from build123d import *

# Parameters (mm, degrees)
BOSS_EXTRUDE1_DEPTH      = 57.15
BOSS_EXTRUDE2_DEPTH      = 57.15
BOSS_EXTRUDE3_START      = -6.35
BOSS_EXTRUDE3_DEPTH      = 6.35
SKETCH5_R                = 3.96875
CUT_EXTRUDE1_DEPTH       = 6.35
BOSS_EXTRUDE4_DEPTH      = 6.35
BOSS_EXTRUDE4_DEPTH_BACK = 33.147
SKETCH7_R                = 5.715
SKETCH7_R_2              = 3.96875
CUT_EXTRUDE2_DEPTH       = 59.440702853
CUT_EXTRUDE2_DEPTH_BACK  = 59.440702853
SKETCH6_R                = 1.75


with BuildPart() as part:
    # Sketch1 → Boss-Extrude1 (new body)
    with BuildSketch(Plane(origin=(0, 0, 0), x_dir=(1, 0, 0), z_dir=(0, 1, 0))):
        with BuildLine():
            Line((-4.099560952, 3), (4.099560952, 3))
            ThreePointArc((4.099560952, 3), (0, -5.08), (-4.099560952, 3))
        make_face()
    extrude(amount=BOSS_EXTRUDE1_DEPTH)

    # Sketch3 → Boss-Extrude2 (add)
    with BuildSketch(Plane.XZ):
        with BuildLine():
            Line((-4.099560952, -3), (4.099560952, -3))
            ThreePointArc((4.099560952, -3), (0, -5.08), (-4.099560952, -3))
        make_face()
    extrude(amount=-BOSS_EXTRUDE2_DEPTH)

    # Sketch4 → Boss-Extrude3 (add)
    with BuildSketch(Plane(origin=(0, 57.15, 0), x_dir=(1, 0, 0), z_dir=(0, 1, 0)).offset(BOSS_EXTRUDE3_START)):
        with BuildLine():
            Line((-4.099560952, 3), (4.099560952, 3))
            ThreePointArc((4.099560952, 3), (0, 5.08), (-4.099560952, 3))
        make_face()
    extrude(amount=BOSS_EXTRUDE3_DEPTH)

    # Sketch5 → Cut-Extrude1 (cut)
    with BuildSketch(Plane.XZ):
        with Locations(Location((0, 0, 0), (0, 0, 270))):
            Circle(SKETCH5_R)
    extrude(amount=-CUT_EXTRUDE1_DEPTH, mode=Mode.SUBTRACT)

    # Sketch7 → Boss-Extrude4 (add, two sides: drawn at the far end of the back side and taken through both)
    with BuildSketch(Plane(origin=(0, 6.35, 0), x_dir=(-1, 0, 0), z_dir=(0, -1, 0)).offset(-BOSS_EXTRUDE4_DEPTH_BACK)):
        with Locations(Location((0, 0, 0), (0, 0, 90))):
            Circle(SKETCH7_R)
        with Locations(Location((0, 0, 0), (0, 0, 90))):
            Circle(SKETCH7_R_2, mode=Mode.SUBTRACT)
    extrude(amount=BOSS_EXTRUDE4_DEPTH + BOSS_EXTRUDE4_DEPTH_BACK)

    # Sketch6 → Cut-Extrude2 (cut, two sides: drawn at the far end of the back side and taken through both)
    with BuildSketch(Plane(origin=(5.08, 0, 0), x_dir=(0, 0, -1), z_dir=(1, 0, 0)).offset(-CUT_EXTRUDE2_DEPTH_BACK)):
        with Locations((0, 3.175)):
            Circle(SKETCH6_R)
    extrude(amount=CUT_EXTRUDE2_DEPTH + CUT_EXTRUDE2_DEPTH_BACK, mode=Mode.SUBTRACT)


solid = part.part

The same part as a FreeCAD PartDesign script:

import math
import FreeCAD as App
import Part
import Sketcher
Q = App.Units.Quantity

doc = App.newDocument("Part")
body = doc.addObject("PartDesign::Body", "Body")

sketch1 = body.newObject("Sketcher::SketchObject", "Sketch")
sketch1.AttachmentSupport = (doc.getObject("XZ_Plane"), [""])
sketch1.MapMode = "FlatFace"
sketch1.addGeometry([
    Part.LineSegment(App.Vector(4.099561, -3, 0), App.Vector(-4.099561, -3, 0)),
    Part.ArcOfCircle(Part.Circle(App.Vector(0, 0, 0), App.Vector(0, 0, 1), 5.08), math.radians(-36.196131), math.radians(216.196131)),
], False)
sketch1.addConstraint([
    Sketcher.Constraint("Coincident", 0, 1, 1, 1),
    Sketcher.Constraint("Coincident", 1, 2, 0, 2),
    Sketcher.Constraint("Horizontal", 0),
    Sketcher.Constraint("Coincident", 1, 3, -1, 1),
    Sketcher.Constraint("Radius", 1, Q("0.2 in")),
    Sketcher.Constraint("DistanceX", 0, 2, 0, 1, Q("0.3228001 in")),
])
pad1 = body.newObject("PartDesign::Pad", "Pad")
pad1.Profile = sketch1
pad1.Length = Q("2.25 in")
pad1.Reversed = True

sketch2 = body.newObject("Sketcher::SketchObject", "Sketch001")
sketch2.AttachmentSupport = (doc.getObject("XZ_Plane"), [""])
sketch2.MapMode = "FlatFace"
sketch2.addGeometry([
    Part.LineSegment(App.Vector(4.099561, -3, 0), App.Vector(-4.099561, -3, 0)),
    Part.ArcOfCircle(Part.Circle(App.Vector(0, 0, 0), App.Vector(0, 0, 1), 5.08), math.radians(-143.803869), math.radians(-36.196131)),
], False)
sketch2.addConstraint([
    Sketcher.Constraint("Coincident", 0, 1, 1, 2),
    Sketcher.Constraint("Coincident", 1, 1, 0, 2),
    Sketcher.Constraint("Horizontal", 0),
    Sketcher.Constraint("Coincident", 1, 3, -1, 1),
    Sketcher.Constraint("Radius", 1, Q("0.2 in")),
    Sketcher.Constraint("DistanceX", 0, 2, 0, 1, Q("0.3228001 in")),
])
pad2 = body.newObject("PartDesign::Pad", "Pad001")
pad2.Profile = sketch2
pad2.Length = Q("2.25 in")
pad2.Reversed = True

sketch3 = body.newObject("Sketcher::SketchObject", "Sketch002")
sketch3.AttachmentSupport = (doc.getObject("XZ_Plane"), [""])
sketch3.MapMode = "FlatFace"
sketch3.AttachmentOffset = App.Placement(App.Vector(0, 0, -2 * 25.4), App.Rotation())
sketch3.addGeometry([
    Part.LineSegment(App.Vector(-4.099561, -3, 0), App.Vector(4.099561, -3, 0)),
    Part.ArcOfCircle(Part.Circle(App.Vector(0, 0, 0), App.Vector(0, 0, 1), 5.08), math.radians(-143.803869), math.radians(-36.196131)),
], False)
sketch3.addConstraint([
    Sketcher.Constraint("Coincident", 0, 1, 1, 1),
    Sketcher.Constraint("Coincident", 1, 2, 0, 2),
    Sketcher.Constraint("Horizontal", 0),
    Sketcher.Constraint("Coincident", 1, 3, -1, 1),
    Sketcher.Constraint("Radius", 1, Q("0.2 in")),
    Sketcher.Constraint("DistanceX", 0, 1, 0, 2, Q("0.3228001 in")),
])
pad3 = body.newObject("PartDesign::Pad", "Pad002")
pad3.Profile = sketch3
pad3.Length = Q("0.25 in")
pad3.Reversed = True

sketch4 = body.newObject("Sketcher::SketchObject", "Sketch003")
sketch4.AttachmentSupport = (doc.getObject("XZ_Plane"), [""])
sketch4.MapMode = "FlatFace"
sketch4.addGeometry(Part.Circle(App.Vector(0, 0, 0), App.Vector(0, 0, 1), 3.96875), False)
sketch4.addConstraint([
    Sketcher.Constraint("Coincident", 0, 3, -1, 1),
    Sketcher.Constraint("Diameter", 0, Q("0.3125 in")),
])
pocket1 = body.newObject("PartDesign::Pocket", "Pocket")
pocket1.Profile = sketch4
pocket1.Length = Q("0.25 in")

sketch5 = body.newObject("Sketcher::SketchObject", "Sketch004")
sketch5.AttachmentSupport = (doc.getObject("XZ_Plane"), [""])
sketch5.MapMode = "FlatFace"
sketch5.AttachmentOffset = App.Placement(App.Vector(0, 0, -0.25 * 25.4), App.Rotation())
sketch5.addGeometry([
    Part.Circle(App.Vector(0, 0, 0), App.Vector(0, 0, 1), 5.715),
    Part.Circle(App.Vector(0, 0, 0), App.Vector(0, 0, 1), 3.96875),
], False)
sketch5.addConstraint([
    Sketcher.Constraint("Coincident", 0, 3, -1, 1),
    Sketcher.Constraint("Coincident", 1, 3, -1, 1),
    Sketcher.Constraint("Diameter", 0, Q("0.45 in")),
    Sketcher.Constraint("Diameter", 1, Q("0.3125 in")),
])
pad4 = body.newObject("PartDesign::Pad", "Pad003")
pad4.Profile = sketch5
pad4.Type = "TwoLengths"
pad4.Length = Q("0.25 in")
pad4.Length2 = Q("1.305 in")

sketch6 = body.newObject("Sketcher::SketchObject", "Sketch005")
sketch6.AttachmentSupport = (doc.getObject("YZ_Plane"), [""])
sketch6.MapMode = "FlatFace"
sketch6.AttachmentOffset = App.Placement(App.Vector(0, 0, 0.2 * 25.4), App.Rotation())
sketch6.addGeometry(Part.Circle(App.Vector(3.175, 0, 0), App.Vector(0, 0, 1), 1.75), False)
sketch6.addConstraint([
    Sketcher.Constraint("PointOnObject", 0, 3, -1),
    Sketcher.Constraint("Diameter", 0, 3.5),
    Sketcher.Constraint("DistanceX", -1, 1, 0, 3, Q("0.125 in")),
])
pocket2 = body.newObject("PartDesign::Pocket", "Pocket001")
pocket2.Profile = sketch6
pocket2.Type = "ThroughAll"
pocket2.Midplane = True

doc.recompute()
